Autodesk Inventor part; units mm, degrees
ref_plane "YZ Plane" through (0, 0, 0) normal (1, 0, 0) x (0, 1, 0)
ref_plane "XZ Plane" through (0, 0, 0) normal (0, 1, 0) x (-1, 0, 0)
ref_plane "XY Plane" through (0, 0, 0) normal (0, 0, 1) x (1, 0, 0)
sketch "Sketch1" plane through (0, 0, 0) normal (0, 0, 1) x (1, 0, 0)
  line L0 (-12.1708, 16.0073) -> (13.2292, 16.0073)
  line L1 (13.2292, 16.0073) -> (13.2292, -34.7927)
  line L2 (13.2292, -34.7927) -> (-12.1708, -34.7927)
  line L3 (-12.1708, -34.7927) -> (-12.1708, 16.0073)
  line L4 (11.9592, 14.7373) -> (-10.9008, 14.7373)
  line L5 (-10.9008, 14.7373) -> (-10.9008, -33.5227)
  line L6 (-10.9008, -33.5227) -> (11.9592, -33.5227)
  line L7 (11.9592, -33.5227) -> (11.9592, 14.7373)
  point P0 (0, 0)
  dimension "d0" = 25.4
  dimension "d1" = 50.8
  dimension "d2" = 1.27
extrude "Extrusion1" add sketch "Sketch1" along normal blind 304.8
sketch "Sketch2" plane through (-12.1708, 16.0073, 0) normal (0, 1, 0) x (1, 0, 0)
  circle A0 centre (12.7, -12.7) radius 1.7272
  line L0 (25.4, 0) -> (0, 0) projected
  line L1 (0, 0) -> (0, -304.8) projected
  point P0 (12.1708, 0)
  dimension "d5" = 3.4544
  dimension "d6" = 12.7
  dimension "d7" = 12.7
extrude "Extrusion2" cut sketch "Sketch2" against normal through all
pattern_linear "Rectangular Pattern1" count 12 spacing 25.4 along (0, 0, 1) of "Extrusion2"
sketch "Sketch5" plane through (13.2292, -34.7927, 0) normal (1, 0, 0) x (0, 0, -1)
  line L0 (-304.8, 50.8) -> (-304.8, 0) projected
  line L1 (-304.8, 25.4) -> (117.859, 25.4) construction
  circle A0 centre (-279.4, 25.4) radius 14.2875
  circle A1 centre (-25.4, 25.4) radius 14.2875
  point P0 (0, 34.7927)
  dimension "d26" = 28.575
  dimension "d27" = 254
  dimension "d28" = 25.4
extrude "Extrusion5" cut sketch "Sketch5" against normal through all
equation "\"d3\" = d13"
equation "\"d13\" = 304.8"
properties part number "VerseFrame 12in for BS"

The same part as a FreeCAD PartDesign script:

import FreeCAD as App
import Part
import Sketcher
from FreeCAD import Vector
Q = App.Units.Quantity

doc = App.newDocument("Part")
body = doc.addObject("PartDesign::Body", "Body")

# Sketch on XY plane
sketch1 = doc.addObject("Sketcher::SketchObject", "Sketch")
body.addObject(sketch1)
sketch1.AttachmentSupport = (doc.XY_Plane, [""])
sketch1.MapMode = "FlatFace"
sketch1.addGeometry([
    Part.LineSegment(Vector(13.2292, 16.0073, 0), Vector(-12.1708, 16.0073, 0)),  # 0
    Part.LineSegment(Vector(-12.1708, 16.0073, 0), Vector(-12.1708, -34.7927, 0)),  # 1
    Part.LineSegment(Vector(-12.1708, -34.7927, 0), Vector(13.2292, -34.7927, 0)),  # 2
    Part.LineSegment(Vector(13.2292, -34.7927, 0), Vector(13.2292, 16.0073, 0)),  # 3
    Part.LineSegment(Vector(-10.9008, 14.7373, 0), Vector(11.9592, 14.7373, 0)),  # 4
    Part.LineSegment(Vector(11.9592, 14.7373, 0), Vector(11.9592, -33.5227, 0)),  # 5
    Part.LineSegment(Vector(11.9592, -33.5227, 0), Vector(-10.9008, -33.5227, 0)),  # 6
    Part.LineSegment(Vector(-10.9008, -33.5227, 0), Vector(-10.9008, 14.7373, 0)),  # 7
], False)
sketch1.addConstraint([
    Sketcher.Constraint("Coincident", 0, 2, 1, 1),
    Sketcher.Constraint("Coincident", 1, 2, 2, 1),
    Sketcher.Constraint("Coincident", 2, 2, 3, 1),
    Sketcher.Constraint("Coincident", 3, 2, 0, 1),
    Sketcher.Constraint("Coincident", 4, 2, 5, 1),
    Sketcher.Constraint("Coincident", 5, 2, 6, 1),
    Sketcher.Constraint("Coincident", 6, 2, 7, 1),
    Sketcher.Constraint("Coincident", 7, 2, 4, 1),
    Sketcher.Constraint("Horizontal", 0),
    Sketcher.Constraint("Vertical", 1),
    Sketcher.Constraint("Horizontal", 2),
    Sketcher.Constraint("Vertical", 3),
    Sketcher.Constraint("Horizontal", 4),
    Sketcher.Constraint("Vertical", 5),
    Sketcher.Constraint("Horizontal", 6),
    Sketcher.Constraint("Vertical", 7),
    Sketcher.Constraint("DistanceX", 0, 2, 0, 1, Q("1 in")),
    Sketcher.Constraint("DistanceY", 1, 2, 1, 1, Q("2 in")),
    Sketcher.Constraint("DistanceX", 4, 2, 3, 2, Q("0.05 in")),
    Sketcher.Constraint("DistanceY", 4, 2, 3, 2, Q("0.05 in")),
    Sketcher.Constraint("DistanceY", 2, 2, 5, 2, Q("0.05 in")),
    Sketcher.Constraint("DistanceX", 1, 2, 6, 2, Q("0.05 in")),
    Sketcher.Constraint("DistanceY", -1, 1, 0, 2, Q("0.6302 in")),
    Sketcher.Constraint("DistanceX", 0, 2, -1, 1, Q("12.1708 mm")),
])
pad1 = doc.addObject("PartDesign::Pad", "Pad")
body.addObject(pad1)
pad1.Profile = sketch1
pad1.Length = Q("12 in")

# Sketch on XZ plane
sketch2 = doc.addObject("Sketcher::SketchObject", "Sketch001")
body.addObject(sketch2)
sketch2.AttachmentSupport = (doc.XZ_Plane, [""])
sketch2.MapMode = "FlatFace"
sketch2.AttachmentOffset = App.Placement(Vector(0, 0, -0.6302087 * 25.4), App.Rotation())
sketch2.addGeometry(Part.Circle(Vector(0.5292, 12.7, 0), Vector(0, 0, 1), 1.7272), False)
sketch2.addConstraint([
    Sketcher.Constraint("Diameter", 0, Q("0.136 in")),
    Sketcher.Constraint("DistanceY", -1, 1, 0, 3, Q("0.5 in")),
    Sketcher.Constraint("DistanceX", -1, 1, 0, 3, Q("0.5292 mm")),
])
pocket1 = doc.addObject("PartDesign::Pocket", "Pocket")
body.addObject(pocket1)
pocket1.Profile = sketch2
pocket1.Type = "ThroughAll"
pocket1.Reversed = True
doc.recompute()

linearpattern = doc.addObject("PartDesign::LinearPattern", "LinearPattern")
body.addObject(linearpattern)
linearpattern.Originals = [pocket1]
linearpattern.Direction = (doc.Z_Axis, [""])
linearpattern.Mode = "offset"
linearpattern.Offset = Q("1 in")
linearpattern.Occurrences = 12
body.Tip = linearpattern

# Sketch on YZ plane
sketch3 = doc.addObject("Sketcher::SketchObject", "Sketch002")
body.addObject(sketch3)
sketch3.AttachmentSupport = (doc.YZ_Plane, [""])
sketch3.MapMode = "FlatFace"
sketch3.AttachmentOffset = App.Placement(Vector(0, 0, 13.2292), App.Rotation())
sketch3.addGeometry([
    Part.Circle(Vector(-9.3927, 279.4, 0), Vector(0, 0, 1), 14.2875),
    Part.Circle(Vector(-9.3927, 25.4, 0), Vector(0, 0, 1), 14.2875),
], False)
sketch3.addConstraint([
    Sketcher.Constraint("Equal", 0, 1),
    Sketcher.Constraint("Vertical", 0, 3, 1, 3),
    Sketcher.Constraint("Diameter", 0, Q("1.125 in")),
    Sketcher.Constraint("DistanceY", -1, 1, 1, 3, Q("1 in")),
    Sketcher.Constraint("DistanceY", 1, 3, 0, 3, Q("10 in")),
    Sketcher.Constraint("DistanceX", 0, 3, -1, 1, Q("0.3698 in")),
])
pocket2 = doc.addObject("PartDesign::Pocket", "Pocket001")
body.addObject(pocket2)
pocket2.Profile = sketch3
pocket2.Type = "ThroughAll"

doc.recompute()
